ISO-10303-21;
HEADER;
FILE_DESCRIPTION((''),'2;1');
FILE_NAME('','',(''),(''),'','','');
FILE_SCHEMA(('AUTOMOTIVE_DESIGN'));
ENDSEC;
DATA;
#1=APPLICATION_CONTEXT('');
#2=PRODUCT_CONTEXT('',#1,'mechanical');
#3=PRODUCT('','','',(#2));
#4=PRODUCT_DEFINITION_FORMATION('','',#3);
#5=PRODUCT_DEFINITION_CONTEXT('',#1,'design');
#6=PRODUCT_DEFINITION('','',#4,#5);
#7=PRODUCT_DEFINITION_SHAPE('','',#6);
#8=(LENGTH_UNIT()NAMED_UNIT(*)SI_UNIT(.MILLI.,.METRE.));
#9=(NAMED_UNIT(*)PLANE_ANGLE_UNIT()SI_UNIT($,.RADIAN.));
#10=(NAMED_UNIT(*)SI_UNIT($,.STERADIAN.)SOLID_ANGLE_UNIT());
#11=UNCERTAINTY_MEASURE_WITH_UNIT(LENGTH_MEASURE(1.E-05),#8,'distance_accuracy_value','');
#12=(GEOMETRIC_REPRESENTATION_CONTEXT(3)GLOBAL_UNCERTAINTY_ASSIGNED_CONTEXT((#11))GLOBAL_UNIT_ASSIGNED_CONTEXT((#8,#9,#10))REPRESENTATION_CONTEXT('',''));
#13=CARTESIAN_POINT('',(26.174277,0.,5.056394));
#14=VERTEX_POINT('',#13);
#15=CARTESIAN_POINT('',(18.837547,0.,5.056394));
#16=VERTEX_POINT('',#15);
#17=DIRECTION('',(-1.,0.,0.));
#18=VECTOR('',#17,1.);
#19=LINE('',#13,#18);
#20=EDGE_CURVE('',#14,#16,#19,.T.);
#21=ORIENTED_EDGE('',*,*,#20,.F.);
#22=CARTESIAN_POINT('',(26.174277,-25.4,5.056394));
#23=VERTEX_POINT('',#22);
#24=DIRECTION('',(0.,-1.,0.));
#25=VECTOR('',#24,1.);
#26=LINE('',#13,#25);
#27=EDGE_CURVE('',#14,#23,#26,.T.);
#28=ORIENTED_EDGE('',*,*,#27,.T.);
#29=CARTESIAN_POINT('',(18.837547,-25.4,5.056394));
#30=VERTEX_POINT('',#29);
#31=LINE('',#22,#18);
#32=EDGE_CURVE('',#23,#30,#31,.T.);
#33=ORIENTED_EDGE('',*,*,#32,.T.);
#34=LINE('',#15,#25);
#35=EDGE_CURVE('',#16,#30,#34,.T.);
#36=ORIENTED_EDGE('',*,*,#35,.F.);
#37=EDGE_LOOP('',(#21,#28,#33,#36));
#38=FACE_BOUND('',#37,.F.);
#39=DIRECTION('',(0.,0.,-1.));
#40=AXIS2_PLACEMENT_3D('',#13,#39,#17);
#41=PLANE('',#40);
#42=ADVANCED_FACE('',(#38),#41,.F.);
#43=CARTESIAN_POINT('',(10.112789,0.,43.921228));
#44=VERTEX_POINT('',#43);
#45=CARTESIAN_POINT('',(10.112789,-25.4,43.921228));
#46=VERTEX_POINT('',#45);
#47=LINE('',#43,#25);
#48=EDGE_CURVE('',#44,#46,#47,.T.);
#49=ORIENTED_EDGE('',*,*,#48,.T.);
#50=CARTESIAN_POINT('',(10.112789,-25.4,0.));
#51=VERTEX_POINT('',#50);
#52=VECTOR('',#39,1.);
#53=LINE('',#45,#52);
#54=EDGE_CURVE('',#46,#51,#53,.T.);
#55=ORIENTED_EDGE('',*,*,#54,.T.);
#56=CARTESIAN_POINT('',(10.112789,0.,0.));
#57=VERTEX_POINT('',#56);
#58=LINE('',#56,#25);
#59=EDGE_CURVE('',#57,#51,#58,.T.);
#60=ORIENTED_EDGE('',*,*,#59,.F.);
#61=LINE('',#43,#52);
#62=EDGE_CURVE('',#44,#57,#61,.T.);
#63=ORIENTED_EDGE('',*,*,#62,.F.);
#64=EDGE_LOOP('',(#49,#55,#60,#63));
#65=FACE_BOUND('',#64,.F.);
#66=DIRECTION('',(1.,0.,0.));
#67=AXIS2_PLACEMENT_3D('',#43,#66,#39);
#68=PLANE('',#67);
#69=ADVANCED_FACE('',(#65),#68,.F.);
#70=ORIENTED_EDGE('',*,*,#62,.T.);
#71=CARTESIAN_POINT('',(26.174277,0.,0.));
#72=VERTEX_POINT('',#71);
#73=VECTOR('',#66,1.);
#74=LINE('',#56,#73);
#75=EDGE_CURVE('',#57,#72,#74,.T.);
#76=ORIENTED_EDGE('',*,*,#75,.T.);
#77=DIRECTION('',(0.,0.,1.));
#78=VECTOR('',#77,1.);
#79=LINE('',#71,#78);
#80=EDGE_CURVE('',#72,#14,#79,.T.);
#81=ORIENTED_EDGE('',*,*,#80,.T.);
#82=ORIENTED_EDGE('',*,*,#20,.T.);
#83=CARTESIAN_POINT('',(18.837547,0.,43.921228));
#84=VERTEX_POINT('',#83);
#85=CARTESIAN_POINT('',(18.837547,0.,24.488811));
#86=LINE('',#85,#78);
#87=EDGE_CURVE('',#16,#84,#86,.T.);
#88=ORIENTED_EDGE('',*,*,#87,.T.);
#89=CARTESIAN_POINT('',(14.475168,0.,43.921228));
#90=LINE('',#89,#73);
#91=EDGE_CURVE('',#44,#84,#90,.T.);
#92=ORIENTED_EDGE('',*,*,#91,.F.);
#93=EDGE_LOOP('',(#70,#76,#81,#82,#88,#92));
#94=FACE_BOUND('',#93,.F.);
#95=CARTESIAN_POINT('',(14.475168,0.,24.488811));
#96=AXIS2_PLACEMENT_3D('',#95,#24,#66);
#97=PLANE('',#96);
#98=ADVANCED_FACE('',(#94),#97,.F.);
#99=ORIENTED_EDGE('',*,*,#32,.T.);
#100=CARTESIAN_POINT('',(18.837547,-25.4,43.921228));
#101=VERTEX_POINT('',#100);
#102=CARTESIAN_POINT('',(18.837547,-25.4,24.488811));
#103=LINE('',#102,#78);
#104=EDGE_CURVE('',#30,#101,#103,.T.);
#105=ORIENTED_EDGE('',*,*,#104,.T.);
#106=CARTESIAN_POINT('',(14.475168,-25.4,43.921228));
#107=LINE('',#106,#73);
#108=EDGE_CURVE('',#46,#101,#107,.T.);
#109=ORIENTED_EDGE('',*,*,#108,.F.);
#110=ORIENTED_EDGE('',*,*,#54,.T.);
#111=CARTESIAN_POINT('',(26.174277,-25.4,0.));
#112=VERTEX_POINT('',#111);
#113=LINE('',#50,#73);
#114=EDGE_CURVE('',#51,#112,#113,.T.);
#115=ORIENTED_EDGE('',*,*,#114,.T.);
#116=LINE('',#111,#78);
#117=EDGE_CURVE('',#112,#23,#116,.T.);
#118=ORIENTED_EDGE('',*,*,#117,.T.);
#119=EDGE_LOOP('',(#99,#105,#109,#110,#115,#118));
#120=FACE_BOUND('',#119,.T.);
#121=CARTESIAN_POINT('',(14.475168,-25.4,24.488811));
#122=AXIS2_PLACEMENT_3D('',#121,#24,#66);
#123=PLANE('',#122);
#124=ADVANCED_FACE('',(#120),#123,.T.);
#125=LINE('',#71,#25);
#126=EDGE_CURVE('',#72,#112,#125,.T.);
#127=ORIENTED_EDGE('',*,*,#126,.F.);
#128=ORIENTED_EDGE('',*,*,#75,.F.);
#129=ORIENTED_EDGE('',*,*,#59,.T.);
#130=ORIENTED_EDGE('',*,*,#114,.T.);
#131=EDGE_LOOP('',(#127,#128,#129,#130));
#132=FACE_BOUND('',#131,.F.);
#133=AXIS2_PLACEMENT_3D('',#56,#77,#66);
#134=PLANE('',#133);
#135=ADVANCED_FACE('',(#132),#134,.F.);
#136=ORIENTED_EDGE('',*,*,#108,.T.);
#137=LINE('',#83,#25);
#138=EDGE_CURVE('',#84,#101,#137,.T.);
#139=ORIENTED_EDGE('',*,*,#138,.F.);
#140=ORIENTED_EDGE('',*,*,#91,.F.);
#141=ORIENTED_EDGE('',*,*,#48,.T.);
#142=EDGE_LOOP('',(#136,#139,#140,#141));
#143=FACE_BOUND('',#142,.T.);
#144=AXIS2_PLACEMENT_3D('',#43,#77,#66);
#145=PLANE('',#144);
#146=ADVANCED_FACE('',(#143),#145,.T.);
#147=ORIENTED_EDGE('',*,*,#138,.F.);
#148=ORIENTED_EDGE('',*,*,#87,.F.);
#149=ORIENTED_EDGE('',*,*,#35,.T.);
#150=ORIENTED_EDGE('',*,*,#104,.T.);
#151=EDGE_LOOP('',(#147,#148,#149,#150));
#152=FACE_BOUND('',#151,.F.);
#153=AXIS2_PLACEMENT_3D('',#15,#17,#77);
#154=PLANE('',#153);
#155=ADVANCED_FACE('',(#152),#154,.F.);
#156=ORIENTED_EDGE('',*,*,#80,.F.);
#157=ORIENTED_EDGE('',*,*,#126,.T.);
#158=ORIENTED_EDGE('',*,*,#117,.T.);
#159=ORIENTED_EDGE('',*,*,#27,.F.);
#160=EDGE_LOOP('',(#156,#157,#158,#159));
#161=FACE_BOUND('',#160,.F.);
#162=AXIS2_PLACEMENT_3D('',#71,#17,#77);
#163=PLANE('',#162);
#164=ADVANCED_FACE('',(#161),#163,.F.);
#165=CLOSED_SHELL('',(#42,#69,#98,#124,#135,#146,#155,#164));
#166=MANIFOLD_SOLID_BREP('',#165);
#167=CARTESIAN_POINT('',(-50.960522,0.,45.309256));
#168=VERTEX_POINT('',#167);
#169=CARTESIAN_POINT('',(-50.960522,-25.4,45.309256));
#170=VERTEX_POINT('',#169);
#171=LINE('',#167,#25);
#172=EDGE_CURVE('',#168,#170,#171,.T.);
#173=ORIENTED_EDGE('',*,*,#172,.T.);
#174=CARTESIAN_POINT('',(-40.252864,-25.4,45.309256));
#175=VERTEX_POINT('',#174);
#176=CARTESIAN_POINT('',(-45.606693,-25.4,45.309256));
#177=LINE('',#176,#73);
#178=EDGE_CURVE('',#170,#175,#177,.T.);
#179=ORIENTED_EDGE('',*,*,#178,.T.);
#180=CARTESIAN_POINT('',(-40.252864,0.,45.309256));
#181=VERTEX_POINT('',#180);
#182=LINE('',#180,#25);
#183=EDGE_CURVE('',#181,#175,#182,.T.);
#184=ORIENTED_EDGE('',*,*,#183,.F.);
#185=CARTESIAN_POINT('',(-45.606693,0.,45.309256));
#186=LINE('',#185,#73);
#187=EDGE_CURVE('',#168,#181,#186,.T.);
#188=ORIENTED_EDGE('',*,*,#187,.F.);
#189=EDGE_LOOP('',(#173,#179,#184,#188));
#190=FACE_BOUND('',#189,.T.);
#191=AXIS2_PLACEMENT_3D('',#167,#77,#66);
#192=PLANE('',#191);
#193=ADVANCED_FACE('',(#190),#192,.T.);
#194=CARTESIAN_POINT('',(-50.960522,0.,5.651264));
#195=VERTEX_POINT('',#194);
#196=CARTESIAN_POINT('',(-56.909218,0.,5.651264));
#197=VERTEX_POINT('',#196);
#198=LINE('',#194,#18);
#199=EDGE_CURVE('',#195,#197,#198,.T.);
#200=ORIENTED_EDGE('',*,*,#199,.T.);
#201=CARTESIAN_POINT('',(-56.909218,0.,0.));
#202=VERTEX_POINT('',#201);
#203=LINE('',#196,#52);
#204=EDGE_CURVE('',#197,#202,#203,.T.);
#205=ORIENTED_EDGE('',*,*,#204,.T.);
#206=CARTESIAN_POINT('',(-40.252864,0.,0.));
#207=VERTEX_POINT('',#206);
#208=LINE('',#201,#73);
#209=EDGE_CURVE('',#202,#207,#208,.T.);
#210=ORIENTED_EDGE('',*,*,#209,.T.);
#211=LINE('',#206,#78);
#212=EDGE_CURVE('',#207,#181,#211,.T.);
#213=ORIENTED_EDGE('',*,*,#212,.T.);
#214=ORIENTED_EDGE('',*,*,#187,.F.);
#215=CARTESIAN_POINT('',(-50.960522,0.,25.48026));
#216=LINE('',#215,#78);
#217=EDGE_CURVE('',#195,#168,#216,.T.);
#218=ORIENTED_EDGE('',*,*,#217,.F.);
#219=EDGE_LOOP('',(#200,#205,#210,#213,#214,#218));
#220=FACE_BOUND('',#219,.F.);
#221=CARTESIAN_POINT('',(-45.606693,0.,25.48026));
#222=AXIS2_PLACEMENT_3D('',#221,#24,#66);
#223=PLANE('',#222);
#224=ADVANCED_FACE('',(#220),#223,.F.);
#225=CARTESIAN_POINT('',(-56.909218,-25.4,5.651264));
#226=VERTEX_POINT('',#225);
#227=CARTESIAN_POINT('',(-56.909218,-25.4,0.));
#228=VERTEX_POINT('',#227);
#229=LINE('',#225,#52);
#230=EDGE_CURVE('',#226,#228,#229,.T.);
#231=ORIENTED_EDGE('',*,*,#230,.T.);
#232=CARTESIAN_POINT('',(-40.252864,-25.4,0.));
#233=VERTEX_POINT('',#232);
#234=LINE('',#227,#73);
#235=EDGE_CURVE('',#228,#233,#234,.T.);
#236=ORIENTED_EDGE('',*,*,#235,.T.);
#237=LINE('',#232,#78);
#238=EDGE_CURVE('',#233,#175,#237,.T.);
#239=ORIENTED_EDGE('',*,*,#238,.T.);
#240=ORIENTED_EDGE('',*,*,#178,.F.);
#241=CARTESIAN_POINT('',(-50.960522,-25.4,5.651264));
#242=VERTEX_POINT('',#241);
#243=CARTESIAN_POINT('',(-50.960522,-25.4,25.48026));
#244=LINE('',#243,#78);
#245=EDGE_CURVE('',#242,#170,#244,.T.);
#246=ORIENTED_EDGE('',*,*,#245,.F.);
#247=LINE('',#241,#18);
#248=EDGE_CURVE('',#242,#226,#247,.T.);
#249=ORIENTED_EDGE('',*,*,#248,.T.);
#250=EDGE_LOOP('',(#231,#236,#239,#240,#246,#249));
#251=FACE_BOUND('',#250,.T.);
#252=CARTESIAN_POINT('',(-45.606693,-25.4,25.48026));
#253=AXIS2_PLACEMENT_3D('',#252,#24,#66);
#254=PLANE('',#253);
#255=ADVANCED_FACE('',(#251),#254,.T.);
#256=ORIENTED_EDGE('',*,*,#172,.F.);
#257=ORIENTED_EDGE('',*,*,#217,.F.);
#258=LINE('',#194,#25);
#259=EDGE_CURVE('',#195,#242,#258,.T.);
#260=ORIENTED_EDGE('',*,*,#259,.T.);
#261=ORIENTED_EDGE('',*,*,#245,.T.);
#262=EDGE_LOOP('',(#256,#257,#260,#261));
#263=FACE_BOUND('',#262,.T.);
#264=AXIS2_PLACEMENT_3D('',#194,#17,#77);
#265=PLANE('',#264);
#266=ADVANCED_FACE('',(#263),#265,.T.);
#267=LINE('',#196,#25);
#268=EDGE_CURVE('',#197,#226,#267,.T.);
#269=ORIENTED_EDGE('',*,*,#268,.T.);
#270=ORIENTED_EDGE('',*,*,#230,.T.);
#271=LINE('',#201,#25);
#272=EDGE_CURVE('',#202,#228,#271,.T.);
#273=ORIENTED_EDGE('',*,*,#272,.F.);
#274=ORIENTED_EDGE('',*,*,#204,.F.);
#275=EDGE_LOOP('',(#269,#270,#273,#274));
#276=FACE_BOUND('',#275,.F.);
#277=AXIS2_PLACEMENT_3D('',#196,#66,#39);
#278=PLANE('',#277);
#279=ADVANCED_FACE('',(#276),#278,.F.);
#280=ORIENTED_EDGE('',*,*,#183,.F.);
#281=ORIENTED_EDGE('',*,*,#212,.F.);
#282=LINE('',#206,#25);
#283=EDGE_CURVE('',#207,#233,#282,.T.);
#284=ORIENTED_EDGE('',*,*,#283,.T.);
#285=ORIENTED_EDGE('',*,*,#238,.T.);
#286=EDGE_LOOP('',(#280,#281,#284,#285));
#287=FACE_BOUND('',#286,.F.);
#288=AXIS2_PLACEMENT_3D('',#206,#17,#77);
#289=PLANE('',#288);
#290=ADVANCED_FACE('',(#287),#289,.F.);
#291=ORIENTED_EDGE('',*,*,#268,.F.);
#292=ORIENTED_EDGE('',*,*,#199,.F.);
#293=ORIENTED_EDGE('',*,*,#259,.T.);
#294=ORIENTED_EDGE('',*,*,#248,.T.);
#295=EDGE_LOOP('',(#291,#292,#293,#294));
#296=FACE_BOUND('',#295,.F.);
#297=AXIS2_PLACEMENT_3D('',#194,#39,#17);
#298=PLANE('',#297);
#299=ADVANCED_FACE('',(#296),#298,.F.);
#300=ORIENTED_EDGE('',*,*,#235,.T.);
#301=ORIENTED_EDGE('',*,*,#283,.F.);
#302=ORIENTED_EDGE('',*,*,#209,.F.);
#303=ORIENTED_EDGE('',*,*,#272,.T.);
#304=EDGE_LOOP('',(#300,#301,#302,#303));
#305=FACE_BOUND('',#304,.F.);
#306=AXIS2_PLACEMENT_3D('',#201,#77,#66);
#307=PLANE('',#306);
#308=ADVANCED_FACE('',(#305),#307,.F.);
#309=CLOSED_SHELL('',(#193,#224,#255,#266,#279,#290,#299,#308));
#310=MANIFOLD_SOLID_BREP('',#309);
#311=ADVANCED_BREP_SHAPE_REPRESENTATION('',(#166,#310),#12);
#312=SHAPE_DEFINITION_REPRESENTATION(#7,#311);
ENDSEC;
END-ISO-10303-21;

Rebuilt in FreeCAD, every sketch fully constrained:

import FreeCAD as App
import Part
import Sketcher
from FreeCAD import Vector
Q = App.Units.Quantity

doc = App.newDocument("Part")
body = doc.addObject("PartDesign::Body", "Body")
body.AllowCompound = True

# Sketch on XZ plane
sketch1 = body.newObject("Sketcher::SketchObject", "Sketch")
sketch1.AttachmentSupport = (doc.getObject("XZ_Plane"), [""])
sketch1.MapMode = "FlatFace"
sketch1.addGeometry([
    Part.LineSegment(Vector(-40, 45, 0), Vector(-51, 45, 0)),  # 0
    Part.LineSegment(Vector(-51, 45, 0), Vector(-51, 6, 0)),  # 1
    Part.LineSegment(Vector(-51, 6, 0), Vector(-57, 6, 0)),  # 2
    Part.LineSegment(Vector(-57, 6, 0), Vector(-57, 0, 0)),  # 3
    Part.LineSegment(Vector(-57, 0, 0), Vector(-40, 0, 0)),  # 4
    Part.LineSegment(Vector(-40, 0, 0), Vector(-40, 45, 0)),  # 5
    Part.LineSegment(Vector(10, 44, 0), Vector(10, 0, 0)),  # 6
    Part.LineSegment(Vector(10, 0, 0), Vector(26, 0, 0)),  # 7
    Part.LineSegment(Vector(26, 0, 0), Vector(26, 5, 0)),  # 8
    Part.LineSegment(Vector(26, 5, 0), Vector(19, 5, 0)),  # 9
    Part.LineSegment(Vector(19, 5, 0), Vector(19, 44, 0)),  # 10
    Part.LineSegment(Vector(19, 44, 0), Vector(10, 44, 0)),  # 11
], False)
sketch1.addConstraint([
    Sketcher.Constraint("Coincident", 0, 2, 1, 1),
    Sketcher.Constraint("Coincident", 1, 2, 2, 1),
    Sketcher.Constraint("Coincident", 2, 2, 3, 1),
    Sketcher.Constraint("Coincident", 3, 2, 4, 1),
    Sketcher.Constraint("Coincident", 4, 2, 5, 1),
    Sketcher.Constraint("Coincident", 5, 2, 0, 1),
    Sketcher.Constraint("Coincident", 6, 2, 7, 1),
    Sketcher.Constraint("Coincident", 7, 2, 8, 1),
    Sketcher.Constraint("Coincident", 8, 2, 9, 1),
    Sketcher.Constraint("Coincident", 9, 2, 10, 1),
    Sketcher.Constraint("Coincident", 10, 2, 11, 1),
    Sketcher.Constraint("Coincident", 11, 2, 6, 1),
    Sketcher.Constraint("Horizontal", 0),
    Sketcher.Constraint("Vertical", 1),
    Sketcher.Constraint("Horizontal", 2),
    Sketcher.Constraint("Vertical", 3),
    Sketcher.Constraint("Horizontal", 4),
    Sketcher.Constraint("Vertical", 5),
    Sketcher.Constraint("Vertical", 6),
    Sketcher.Constraint("Horizontal", 7),
    Sketcher.Constraint("Vertical", 8),
    Sketcher.Constraint("Horizontal", 9),
    Sketcher.Constraint("Vertical", 10),
    Sketcher.Constraint("Horizontal", 11),
    Sketcher.Constraint("PointOnObject", 3, 2, -1),
    Sketcher.Constraint("PointOnObject", 6, 2, -1),
    Sketcher.Constraint("DistanceX", 7, 1, 7, 2, 16.061488),
    Sketcher.Constraint("DistanceX", 9, 2, 9, 1, 7.33673),
    Sketcher.Constraint("DistanceX", 1, 2, 7, 2, 77.134799),
    Sketcher.Constraint("DistanceX", 0, 2, 0, 1, 10.707658),
    Sketcher.Constraint("DistanceX", 2, 2, 2, 1, 5.948696),
    Sketcher.Constraint("DistanceY", 1, 2, 1, 1, 39.657992),
    Sketcher.Constraint("DistanceY", 3, 2, 3, 1, 5.651264),
    Sketcher.Constraint("DistanceY", 6, 2, 6, 1, 43.921228),
    Sketcher.Constraint("DistanceY", 8, 1, 8, 2, 5.056394),
    Sketcher.Constraint("DistanceX", 0, 2, -1, 1, 50.960522),
])
pad1 = body.newObject("PartDesign::Pad", "Pad")
pad1.Profile = sketch1
pad1.Length = Q("1 in")

doc.recompute()
